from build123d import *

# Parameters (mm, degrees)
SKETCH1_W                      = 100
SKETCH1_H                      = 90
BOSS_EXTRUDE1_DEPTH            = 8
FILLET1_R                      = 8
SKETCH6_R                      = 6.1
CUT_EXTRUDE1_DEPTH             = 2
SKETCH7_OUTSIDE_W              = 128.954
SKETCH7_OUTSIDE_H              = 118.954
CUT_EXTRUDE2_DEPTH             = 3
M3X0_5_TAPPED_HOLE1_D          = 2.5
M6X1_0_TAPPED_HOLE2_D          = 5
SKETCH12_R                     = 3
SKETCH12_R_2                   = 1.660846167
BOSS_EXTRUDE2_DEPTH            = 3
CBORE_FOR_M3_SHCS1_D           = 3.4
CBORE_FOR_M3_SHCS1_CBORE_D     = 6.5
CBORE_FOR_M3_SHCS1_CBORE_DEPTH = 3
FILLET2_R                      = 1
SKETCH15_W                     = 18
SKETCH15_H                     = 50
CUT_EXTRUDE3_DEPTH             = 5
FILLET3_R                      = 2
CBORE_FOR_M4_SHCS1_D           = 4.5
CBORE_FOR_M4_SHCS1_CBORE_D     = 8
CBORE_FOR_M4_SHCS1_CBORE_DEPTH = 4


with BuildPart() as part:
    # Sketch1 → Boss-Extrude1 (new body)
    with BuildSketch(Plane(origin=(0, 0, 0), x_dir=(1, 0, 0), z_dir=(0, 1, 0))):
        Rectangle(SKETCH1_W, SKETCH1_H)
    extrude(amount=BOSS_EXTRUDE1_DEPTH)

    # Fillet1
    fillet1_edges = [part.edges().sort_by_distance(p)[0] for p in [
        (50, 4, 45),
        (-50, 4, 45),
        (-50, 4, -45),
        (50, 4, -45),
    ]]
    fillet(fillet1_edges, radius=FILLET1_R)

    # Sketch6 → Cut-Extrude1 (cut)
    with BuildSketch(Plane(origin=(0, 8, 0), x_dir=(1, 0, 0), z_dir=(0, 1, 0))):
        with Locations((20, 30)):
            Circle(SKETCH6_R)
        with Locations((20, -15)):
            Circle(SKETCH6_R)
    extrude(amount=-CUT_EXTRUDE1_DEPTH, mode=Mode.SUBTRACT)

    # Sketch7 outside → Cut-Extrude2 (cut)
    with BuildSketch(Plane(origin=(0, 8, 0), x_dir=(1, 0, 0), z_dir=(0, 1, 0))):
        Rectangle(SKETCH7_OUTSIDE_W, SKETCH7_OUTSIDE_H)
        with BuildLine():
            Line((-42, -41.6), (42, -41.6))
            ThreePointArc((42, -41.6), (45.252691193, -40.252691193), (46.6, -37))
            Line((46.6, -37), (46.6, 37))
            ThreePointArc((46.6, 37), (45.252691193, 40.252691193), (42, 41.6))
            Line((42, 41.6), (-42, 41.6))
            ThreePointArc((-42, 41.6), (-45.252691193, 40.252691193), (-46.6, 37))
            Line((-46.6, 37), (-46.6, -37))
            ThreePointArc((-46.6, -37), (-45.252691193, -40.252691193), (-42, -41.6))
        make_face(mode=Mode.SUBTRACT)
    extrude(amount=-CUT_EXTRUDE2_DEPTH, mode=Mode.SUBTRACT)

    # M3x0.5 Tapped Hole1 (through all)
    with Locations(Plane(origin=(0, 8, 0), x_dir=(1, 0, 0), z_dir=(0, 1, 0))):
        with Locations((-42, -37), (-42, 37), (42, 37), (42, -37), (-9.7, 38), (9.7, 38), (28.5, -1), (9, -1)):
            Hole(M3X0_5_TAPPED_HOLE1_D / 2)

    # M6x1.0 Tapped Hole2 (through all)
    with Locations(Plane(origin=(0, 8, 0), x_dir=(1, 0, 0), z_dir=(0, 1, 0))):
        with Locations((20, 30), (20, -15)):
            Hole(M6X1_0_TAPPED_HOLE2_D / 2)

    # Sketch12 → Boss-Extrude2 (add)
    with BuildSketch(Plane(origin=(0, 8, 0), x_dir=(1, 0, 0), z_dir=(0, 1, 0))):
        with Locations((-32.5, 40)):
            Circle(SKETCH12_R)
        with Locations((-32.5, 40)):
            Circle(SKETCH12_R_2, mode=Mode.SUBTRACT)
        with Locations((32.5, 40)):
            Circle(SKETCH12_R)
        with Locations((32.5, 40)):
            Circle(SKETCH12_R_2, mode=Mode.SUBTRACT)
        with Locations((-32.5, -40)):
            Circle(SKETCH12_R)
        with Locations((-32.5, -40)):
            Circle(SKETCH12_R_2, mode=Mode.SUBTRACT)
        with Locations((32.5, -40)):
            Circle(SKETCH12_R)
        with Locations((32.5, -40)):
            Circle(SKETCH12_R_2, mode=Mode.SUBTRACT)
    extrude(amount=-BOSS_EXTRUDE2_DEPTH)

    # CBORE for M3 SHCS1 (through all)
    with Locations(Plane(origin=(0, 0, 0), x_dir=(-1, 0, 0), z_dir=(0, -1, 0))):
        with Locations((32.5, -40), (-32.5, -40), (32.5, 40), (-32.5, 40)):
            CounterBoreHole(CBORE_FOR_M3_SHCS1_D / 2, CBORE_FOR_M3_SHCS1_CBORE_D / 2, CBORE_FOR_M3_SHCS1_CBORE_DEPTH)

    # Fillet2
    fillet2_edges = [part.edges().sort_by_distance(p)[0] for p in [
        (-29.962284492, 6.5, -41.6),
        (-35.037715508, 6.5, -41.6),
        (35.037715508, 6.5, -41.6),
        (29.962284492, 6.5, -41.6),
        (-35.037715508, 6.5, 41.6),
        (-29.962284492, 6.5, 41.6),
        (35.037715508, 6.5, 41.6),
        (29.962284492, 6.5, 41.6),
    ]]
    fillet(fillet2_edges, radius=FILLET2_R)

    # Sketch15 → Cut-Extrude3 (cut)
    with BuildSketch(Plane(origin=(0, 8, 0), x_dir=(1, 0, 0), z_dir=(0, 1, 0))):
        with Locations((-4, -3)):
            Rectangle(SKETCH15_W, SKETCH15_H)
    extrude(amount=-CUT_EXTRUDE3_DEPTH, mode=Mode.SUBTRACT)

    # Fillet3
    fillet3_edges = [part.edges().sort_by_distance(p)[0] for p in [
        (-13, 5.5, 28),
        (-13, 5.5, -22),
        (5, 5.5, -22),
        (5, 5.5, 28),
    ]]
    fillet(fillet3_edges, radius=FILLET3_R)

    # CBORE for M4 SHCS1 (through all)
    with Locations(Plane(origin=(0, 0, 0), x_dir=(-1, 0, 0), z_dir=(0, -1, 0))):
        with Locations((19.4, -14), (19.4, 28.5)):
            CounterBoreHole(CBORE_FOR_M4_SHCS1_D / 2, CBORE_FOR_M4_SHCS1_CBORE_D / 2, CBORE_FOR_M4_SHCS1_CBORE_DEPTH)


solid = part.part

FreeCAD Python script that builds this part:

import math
import FreeCAD as App
import Part
import Sketcher


def edges_at(feature, points):
    """Names of the edges that pass closest to the given points."""
    edges = feature.Shape.Edges
    near = lambda p: min(range(len(edges)), key=lambda i: edges[i].distToShape(Part.Vertex(*p))[0])
    return sorted({f"Edge{near(p) + 1}" for p in points})

doc = App.newDocument("Part")
body = doc.addObject("PartDesign::Body", "Body")

# Sketch on XZ plane
sketch1 = doc.addObject("Sketcher::SketchObject", "Sketch")
body.addObject(sketch1)
sketch1.AttachmentSupport = (doc.XZ_Plane, [""])
sketch1.MapMode = "FlatFace"
sketch1.addGeometry([
    Part.LineSegment(App.Vector(-50, -45, 0), App.Vector(-50, 45, 0)),
    Part.LineSegment(App.Vector(-50, 45, 0), App.Vector(50, 45, 0)),
    Part.LineSegment(App.Vector(50, 45, 0), App.Vector(50, -45, 0)),
    Part.LineSegment(App.Vector(50, -45, 0), App.Vector(-50, -45, 0)),
], False)
sketch1.addConstraint([
    Sketcher.Constraint("Coincident", 0, 2, 1, 1),
    Sketcher.Constraint("Coincident", 1, 2, 2, 1),
    Sketcher.Constraint("Coincident", 2, 2, 3, 1),
    Sketcher.Constraint("Coincident", 3, 2, 0, 1),
    Sketcher.Constraint("Vertical", 0),
    Sketcher.Constraint("Horizontal", 1),
    Sketcher.Constraint("Vertical", 2),
    Sketcher.Constraint("Horizontal", 3),
    Sketcher.Constraint("Symmetric", 0, 2, 2, 2, -1, 1),
    Sketcher.Constraint("DistanceX", 1, 1, 1, 2, 100.0),
    Sketcher.Constraint("DistanceY", 0, 1, 0, 2, 90.0),
])
pad1 = doc.addObject("PartDesign::Pad", "Pad")
body.addObject(pad1)
pad1.Profile = sketch1
pad1.Length = 8
pad1.Reversed = True
doc.recompute()

fillet = doc.addObject("PartDesign::Fillet", "Fillet")
body.addObject(fillet)
fillet.Base = (pad1, edges_at(pad1, [
    (50, 4, 45),
    (-50, 4, 45),
    (-50, 4, -45),
    (50, 4, -45),
]))
fillet.Radius = 8

# Sketch on XZ plane
sketch2 = doc.addObject("Sketcher::SketchObject", "Sketch001")
body.addObject(sketch2)
sketch2.AttachmentSupport = (doc.XZ_Plane, [""])
sketch2.MapMode = "FlatFace"
sketch2.AttachmentOffset = App.Placement(App.Vector(0, 0, -8), App.Rotation())
sketch2.addGeometry([
    Part.Circle(App.Vector(20, -30, 0), App.Vector(0, 0, 1), 6.1),
    Part.Circle(App.Vector(20, 15, 0), App.Vector(0, 0, 1), 6.1),
], False)
sketch2.addConstraint([
    Sketcher.Constraint("Equal", 0, 1),
    Sketcher.Constraint("Vertical", 0, 3, 1, 3),
    Sketcher.Constraint("Diameter", 0, 12.2),
    Sketcher.Constraint("DistanceX", -1, 1, 0, 3, 20.0),
    Sketcher.Constraint("DistanceY", 0, 3, -1, 1, 30.0),
    Sketcher.Constraint("DistanceY", -1, 1, 1, 3, 15.0),
])
pocket1 = doc.addObject("PartDesign::Pocket", "Pocket")
body.addObject(pocket1)
pocket1.Profile = sketch2
pocket1.Length = 2
pocket1.Reversed = True

# Sketch on XZ plane
sketch3 = doc.addObject("Sketcher::SketchObject", "Sketch002")
body.addObject(sketch3)
sketch3.AttachmentSupport = (doc.XZ_Plane, [""])
sketch3.MapMode = "FlatFace"
sketch3.AttachmentOffset = App.Placement(App.Vector(0, 0, -8), App.Rotation())
sketch3.addGeometry([
    Part.LineSegment(App.Vector(-64.477, -59.477, 0), App.Vector(-64.477, 59.477, 0)),  # 0
    Part.LineSegment(App.Vector(-64.477, 59.477, 0), App.Vector(64.477, 59.477, 0)),  # 1
    Part.LineSegment(App.Vector(64.477, 59.477, 0), App.Vector(64.477, -59.477, 0)),  # 2
    Part.LineSegment(App.Vector(64.477, -59.477, 0), App.Vector(-64.477, -59.477, 0)),  # 3
    Part.LineSegment(App.Vector(42, 41.6, 0), App.Vector(-42, 41.6, 0)),  # 4
    Part.ArcOfCircle(Part.Circle(App.Vector(-42, 37, 0), App.Vector(0, 0, 1), 4.6), math.radians(90), math.radians(180)),  # 5
    Part.LineSegment(App.Vector(-46.6, 37, 0), App.Vector(-46.6, -37, 0)),  # 6
    Part.ArcOfCircle(Part.Circle(App.Vector(-42, -37, 0), App.Vector(0, 0, 1), 4.6), math.radians(-180), math.radians(-90)),  # 7
    Part.LineSegment(App.Vector(-42, -41.6, 0), App.Vector(42, -41.6, 0)),  # 8
    Part.ArcOfCircle(Part.Circle(App.Vector(42, -37, 0), App.Vector(0, 0, 1), 4.6), math.radians(-90), math.radians(0)),  # 9
    Part.LineSegment(App.Vector(46.6, -37, 0), App.Vector(46.6, 37, 0)),  # 10
    Part.ArcOfCircle(Part.Circle(App.Vector(42, 37, 0), App.Vector(0, 0, 1), 4.6), math.radians(0), math.radians(90)),  # 11
], False)
sketch3.addConstraint([
    Sketcher.Constraint("Coincident", 0, 2, 1, 1),
    Sketcher.Constraint("Coincident", 1, 2, 2, 1),
    Sketcher.Constraint("Coincident", 2, 2, 3, 1),
    Sketcher.Constraint("Coincident", 3, 2, 0, 1),
    Sketcher.Constraint("Tangent", 4, 2, 5, 1),
    Sketcher.Constraint("Tangent", 5, 2, 6, 1),
    Sketcher.Constraint("Tangent", 6, 2, 7, 1),
    Sketcher.Constraint("Tangent", 7, 2, 8, 1),
    Sketcher.Constraint("Tangent", 8, 2, 9, 1),
    Sketcher.Constraint("Tangent", 9, 2, 10, 1),
    Sketcher.Constraint("Tangent", 10, 2, 11, 1),
    Sketcher.Constraint("Tangent", 11, 2, 4, 1),
    Sketcher.Constraint("Vertical", 0),
    Sketcher.Constraint("Horizontal", 1),
    Sketcher.Constraint("Vertical", 2),
    Sketcher.Constraint("Horizontal", 3),
    Sketcher.Constraint("Horizontal", 4),
    Sketcher.Constraint("Vertical", 6),
    Sketcher.Constraint("Horizontal", 8),
    Sketcher.Constraint("Vertical", 10),
    Sketcher.Constraint("Equal", 5, 7),
    Sketcher.Constraint("Equal", 7, 9),
    Sketcher.Constraint("Equal", 9, 11),
    Sketcher.Constraint("Symmetric", 5, 3, 9, 3, -1, 1),
    Sketcher.Constraint("Symmetric", 0, 2, 2, 2, -1, 1),
    Sketcher.Constraint("Radius", 5, 4.6),
    Sketcher.Constraint("DistanceX", 4, 2, 4, 1, 84.0),
    Sketcher.Constraint("DistanceY", 6, 2, 6, 1, 74.0),
    Sketcher.Constraint("DistanceX", 1, 1, 1, 2, 128.954),
    Sketcher.Constraint("DistanceY", 0, 1, 0, 2, 118.954),
])
pocket2 = doc.addObject("PartDesign::Pocket", "Pocket001")
body.addObject(pocket2)
pocket2.Profile = sketch3
pocket2.Length = 3
pocket2.Reversed = True

# Sketch on XZ plane
sketch4 = doc.addObject("Sketcher::SketchObject", "Sketch003")
body.addObject(sketch4)
sketch4.AttachmentSupport = (doc.XZ_Plane, [""])
sketch4.MapMode = "FlatFace"
sketch4.AttachmentOffset = App.Placement(App.Vector(0, 0, -8), App.Rotation())
sketch4.addGeometry([
    Part.Circle(App.Vector(-42, 37, 0), App.Vector(0, 0, 1), 1.25),  # 0
    Part.Circle(App.Vector(-42, -37, 0), App.Vector(0, 0, 1), 1.25),  # 1
    Part.Circle(App.Vector(42, -37, 0), App.Vector(0, 0, 1), 1.25),  # 2
    Part.Circle(App.Vector(42, 37, 0), App.Vector(0, 0, 1), 1.25),  # 3
    Part.Circle(App.Vector(-9.7, -38, 0), App.Vector(0, 0, 1), 1.25),  # 4
    Part.Circle(App.Vector(9.7, -38, 0), App.Vector(0, 0, 1), 1.25),  # 5
    Part.Circle(App.Vector(28.5, 1, 0), App.Vector(0, 0, 1), 1.25),  # 6
    Part.Circle(App.Vector(9, 1, 0), App.Vector(0, 0, 1), 1.25),  # 7
], False)
sketch4.addConstraint([
    Sketcher.Constraint("Equal", 0, 1),
    Sketcher.Constraint("Equal", 1, 2),
    Sketcher.Constraint("Equal", 2, 3),
    Sketcher.Constraint("Equal", 3, 4),
    Sketcher.Constraint("Equal", 4, 5),
    Sketcher.Constraint("Equal", 5, 6),
    Sketcher.Constraint("Equal", 6, 7),
    Sketcher.Constraint("Symmetric", 0, 3, 2, 3, -1, 1),
    Sketcher.Constraint("Symmetric", 1, 3, 3, 3, -1, 1),
    Sketcher.Constraint("Symmetric", 1, 3, 2, 3, -2),
    Sketcher.Constraint("Symmetric", 4, 3, 5, 3, -2),
    Sketcher.Constraint("Horizontal", 6, 3, 7, 3),
    Sketcher.Constraint("Diameter", 0, 2.5),
    Sketcher.Constraint("DistanceX", 0, 3, -1, 1, 42.0),
    Sketcher.Constraint("DistanceY", -1, 1, 0, 3, 37.0),
    Sketcher.Constraint("DistanceY", 4, 3, -1, 1, 38.0),
    Sketcher.Constraint("DistanceY", -1, 1, 6, 3, 1.0),
    Sketcher.Constraint("DistanceX", -1, 1, 7, 3, 9.0),
    Sketcher.Constraint("DistanceX", 4, 3, -1, 1, 9.7),
    Sketcher.Constraint("DistanceX", -1, 1, 6, 3, 28.5),
])
doc.recompute()
hole = doc.addObject("PartDesign::Hole", "Hole")
body.addObject(hole)
hole.Profile = sketch4
hole.ThreadType = "None"
hole.Diameter = 2.5
hole.DepthType = "ThroughAll"
hole.Reversed = True

# Sketch on XZ plane
sketch5 = doc.addObject("Sketcher::SketchObject", "Sketch004")
body.addObject(sketch5)
sketch5.AttachmentSupport = (doc.XZ_Plane, [""])
sketch5.MapMode = "FlatFace"
sketch5.AttachmentOffset = App.Placement(App.Vector(0, 0, -8), App.Rotation())
sketch5.addGeometry([
    Part.Circle(App.Vector(20, -30, 0), App.Vector(0, 0, 1), 2.5),
    Part.Circle(App.Vector(20, 15, 0), App.Vector(0, 0, 1), 2.5),
], False)
sketch5.addConstraint([
    Sketcher.Constraint("Equal", 0, 1),
    Sketcher.Constraint("Vertical", 0, 3, 1, 3),
    Sketcher.Constraint("Diameter", 0, 5.0),
    Sketcher.Constraint("DistanceX", -1, 1, 0, 3, 20.0),
    Sketcher.Constraint("DistanceY", 0, 3, -1, 1, 30.0),
    Sketcher.Constraint("DistanceY", -1, 1, 1, 3, 15.0),
])
doc.recompute()
hole2 = doc.addObject("PartDesign::Hole", "Hole001")
body.addObject(hole2)
hole2.Profile = sketch5
hole2.ThreadType = "None"
hole2.Diameter = 5
hole2.DepthType = "ThroughAll"
hole2.Reversed = True

# Sketch on XZ plane
sketch6 = doc.addObject("Sketcher::SketchObject", "Sketch005")
body.addObject(sketch6)
sketch6.AttachmentSupport = (doc.XZ_Plane, [""])
sketch6.MapMode = "FlatFace"
sketch6.AttachmentOffset = App.Placement(App.Vector(0, 0, -8), App.Rotation())
sketch6.addGeometry([
    Part.Circle(App.Vector(-32.5, -40, 0), App.Vector(0, 0, 1), 3),  # 0
    Part.Circle(App.Vector(-32.5, -40, 0), App.Vector(0, 0, 1), 1.660846),  # 1
    Part.Circle(App.Vector(32.5, -40, 0), App.Vector(0, 0, 1), 3),  # 2
    Part.Circle(App.Vector(32.5, -40, 0), App.Vector(0, 0, 1), 1.660846),  # 3
    Part.Circle(App.Vector(-32.5, 40, 0), App.Vector(0, 0, 1), 3),  # 4
    Part.Circle(App.Vector(-32.5, 40, 0), App.Vector(0, 0, 1), 1.660846),  # 5
    Part.Circle(App.Vector(32.5, 40, 0), App.Vector(0, 0, 1), 3),  # 6
    Part.Circle(App.Vector(32.5, 40, 0), App.Vector(0, 0, 1), 1.660846),  # 7
], False)
sketch6.addConstraint([
    Sketcher.Constraint("Coincident", 1, 3, 0, 3),
    Sketcher.Constraint("Coincident", 3, 3, 2, 3),
    Sketcher.Constraint("Coincident", 5, 3, 4, 3),
    Sketcher.Constraint("Coincident", 7, 3, 6, 3),
    Sketcher.Constraint("Equal", 0, 2),
    Sketcher.Constraint("Equal", 1, 3),
    Sketcher.Constraint("Equal", 2, 4),
    Sketcher.Constraint("Equal", 3, 5),
    Sketcher.Constraint("Equal", 4, 6),
    Sketcher.Constraint("Equal", 5, 7),
    Sketcher.Constraint("Symmetric", 2, 3, 4, 3, -1, 1),
    Sketcher.Constraint("Symmetric", 0, 3, 6, 3, -1, 1),
    Sketcher.Constraint("Symmetric", 0, 3, 2, 3, -2),
    Sketcher.Constraint("Diameter", 0, 6.0),
    Sketcher.Constraint("DistanceY", 0, 3, -1, 1, 40.0),
    Sketcher.Constraint("DistanceX", 0, 3, 2, 3, 65.0),
    Sketcher.Constraint("Diameter", 1, 3.321692),
])
pad2 = doc.addObject("PartDesign::Pad", "Pad001")
body.addObject(pad2)
pad2.Profile = sketch6
pad2.Length = 3

# Sketch on XZ plane
sketch7 = doc.addObject("Sketcher::SketchObject", "Sketch006")
body.addObject(sketch7)
sketch7.AttachmentSupport = (doc.XZ_Plane, [""])
sketch7.MapMode = "FlatFace"
sketch7.addGeometry([
    Part.Circle(App.Vector(-32.5, 40, 0), App.Vector(0, 0, 1), 1.7),
    Part.Circle(App.Vector(32.5, 40, 0), App.Vector(0, 0, 1), 1.7),
    Part.Circle(App.Vector(-32.5, -40, 0), App.Vector(0, 0, 1), 1.7),
    Part.Circle(App.Vector(32.5, -40, 0), App.Vector(0, 0, 1), 1.7),
], False)
sketch7.addConstraint([
    Sketcher.Constraint("Equal", 0, 1),
    Sketcher.Constraint("Equal", 1, 2),
    Sketcher.Constraint("Equal", 2, 3),
    Sketcher.Constraint("Symmetric", 1, 3, 2, 3, -1, 1),
    Sketcher.Constraint("Symmetric", 0, 3, 3, 3, -1, 1),
    Sketcher.Constraint("Symmetric", 0, 3, 1, 3, -2),
    Sketcher.Constraint("Diameter", 0, 3.4),
    Sketcher.Constraint("DistanceY", -1, 1, 0, 3, 40.0),
    Sketcher.Constraint("DistanceX", 0, 3, 1, 3, 65.0),
])
doc.recompute()
hole3 = doc.addObject("PartDesign::Hole", "Hole002")
body.addObject(hole3)
hole3.Profile = sketch7
hole3.ThreadType = "None"
hole3.Diameter = 3.4
hole3.DepthType = "ThroughAll"
hole3.HoleCutType = "Counterbore"
hole3.HoleCutDiameter = 6.5
hole3.HoleCutDepth = 3
doc.recompute()

fillet2 = doc.addObject("PartDesign::Fillet", "Fillet001")
body.addObject(fillet2)
fillet2.Base = (hole3, edges_at(hole3, [
    (-29.962, 6.5, -41.6),
    (-35.038, 6.5, -41.6),
    (35.038, 6.5, -41.6),
    (29.962, 6.5, -41.6),
    (-35.038, 6.5, 41.6),
    (-29.962, 6.5, 41.6),
    (35.038, 6.5, 41.6),
    (29.962, 6.5, 41.6),
]))
fillet2.Radius = 1

# Sketch on XZ plane
sketch8 = doc.addObject("Sketcher::SketchObject", "Sketch007")
body.addObject(sketch8)
sketch8.AttachmentSupport = (doc.XZ_Plane, [""])
sketch8.MapMode = "FlatFace"
sketch8.AttachmentOffset = App.Placement(App.Vector(0, 0, -8), App.Rotation())
sketch8.addGeometry([
    Part.LineSegment(App.Vector(-13, -22, 0), App.Vector(-13, 28, 0)),
    Part.LineSegment(App.Vector(-13, 28, 0), App.Vector(5, 28, 0)),
    Part.LineSegment(App.Vector(5, 28, 0), App.Vector(5, -22, 0)),
    Part.LineSegment(App.Vector(5, -22, 0), App.Vector(-13, -22, 0)),
], False)
sketch8.addConstraint([
    Sketcher.Constraint("Coincident", 0, 2, 1, 1),
    Sketcher.Constraint("Coincident", 1, 2, 2, 1),
    Sketcher.Constraint("Coincident", 2, 2, 3, 1),
    Sketcher.Constraint("Coincident", 3, 2, 0, 1),
    Sketcher.Constraint("Vertical", 0),
    Sketcher.Constraint("Horizontal", 1),
    Sketcher.Constraint("Vertical", 2),
    Sketcher.Constraint("Horizontal", 3),
    Sketcher.Constraint("DistanceX", 1, 1, 1, 2, 18.0),
    Sketcher.Constraint("DistanceY", 0, 1, 0, 2, 50.0),
    Sketcher.Constraint("DistanceX", 0, 2, -1, 1, 13.0),
    Sketcher.Constraint("DistanceY", -1, 1, 0, 2, 28.0),
])
pocket3 = doc.addObject("PartDesign::Pocket", "Pocket002")
body.addObject(pocket3)
pocket3.Profile = sketch8
pocket3.Length = 5
pocket3.Reversed = True
doc.recompute()

fillet3 = doc.addObject("PartDesign::Fillet", "Fillet002")
body.addObject(fillet3)
fillet3.Base = (pocket3, edges_at(pocket3, [
    (-13, 5.5, 28),
    (-13, 5.5, -22),
    (5, 5.5, -22),
    (5, 5.5, 28),
]))
fillet3.Radius = 2

# Sketch on XZ plane
sketch9 = doc.addObject("Sketcher::SketchObject", "Sketch008")
body.addObject(sketch9)
sketch9.AttachmentSupport = (doc.XZ_Plane, [""])
sketch9.MapMode = "FlatFace"
sketch9.addGeometry([
    Part.Circle(App.Vector(-19.4, 14, 0), App.Vector(0, 0, 1), 2.25),
    Part.Circle(App.Vector(-19.4, -28.5, 0), App.Vector(0, 0, 1), 2.25),
], False)
sketch9.addConstraint([
    Sketcher.Constraint("Equal", 0, 1),
    Sketcher.Constraint("Vertical", 0, 3, 1, 3),
    Sketcher.Constraint("Diameter", 0, 4.5),
    Sketcher.Constraint("DistanceY", -1, 1, 0, 3, 14.0),
    Sketcher.Constraint("DistanceX", 0, 3, -1, 1, 19.4),
    Sketcher.Constraint("DistanceY", 1, 3, -1, 1, 28.5),
])
doc.recompute()
hole4 = doc.addObject("PartDesign::Hole", "Hole003")
body.addObject(hole4)
hole4.Profile = sketch9
hole4.ThreadType = "None"
hole4.Diameter = 4.5
hole4.DepthType = "ThroughAll"
hole4.HoleCutType = "Counterbore"
hole4.HoleCutDiameter = 8
hole4.HoleCutDepth = 4

doc.recompute()
